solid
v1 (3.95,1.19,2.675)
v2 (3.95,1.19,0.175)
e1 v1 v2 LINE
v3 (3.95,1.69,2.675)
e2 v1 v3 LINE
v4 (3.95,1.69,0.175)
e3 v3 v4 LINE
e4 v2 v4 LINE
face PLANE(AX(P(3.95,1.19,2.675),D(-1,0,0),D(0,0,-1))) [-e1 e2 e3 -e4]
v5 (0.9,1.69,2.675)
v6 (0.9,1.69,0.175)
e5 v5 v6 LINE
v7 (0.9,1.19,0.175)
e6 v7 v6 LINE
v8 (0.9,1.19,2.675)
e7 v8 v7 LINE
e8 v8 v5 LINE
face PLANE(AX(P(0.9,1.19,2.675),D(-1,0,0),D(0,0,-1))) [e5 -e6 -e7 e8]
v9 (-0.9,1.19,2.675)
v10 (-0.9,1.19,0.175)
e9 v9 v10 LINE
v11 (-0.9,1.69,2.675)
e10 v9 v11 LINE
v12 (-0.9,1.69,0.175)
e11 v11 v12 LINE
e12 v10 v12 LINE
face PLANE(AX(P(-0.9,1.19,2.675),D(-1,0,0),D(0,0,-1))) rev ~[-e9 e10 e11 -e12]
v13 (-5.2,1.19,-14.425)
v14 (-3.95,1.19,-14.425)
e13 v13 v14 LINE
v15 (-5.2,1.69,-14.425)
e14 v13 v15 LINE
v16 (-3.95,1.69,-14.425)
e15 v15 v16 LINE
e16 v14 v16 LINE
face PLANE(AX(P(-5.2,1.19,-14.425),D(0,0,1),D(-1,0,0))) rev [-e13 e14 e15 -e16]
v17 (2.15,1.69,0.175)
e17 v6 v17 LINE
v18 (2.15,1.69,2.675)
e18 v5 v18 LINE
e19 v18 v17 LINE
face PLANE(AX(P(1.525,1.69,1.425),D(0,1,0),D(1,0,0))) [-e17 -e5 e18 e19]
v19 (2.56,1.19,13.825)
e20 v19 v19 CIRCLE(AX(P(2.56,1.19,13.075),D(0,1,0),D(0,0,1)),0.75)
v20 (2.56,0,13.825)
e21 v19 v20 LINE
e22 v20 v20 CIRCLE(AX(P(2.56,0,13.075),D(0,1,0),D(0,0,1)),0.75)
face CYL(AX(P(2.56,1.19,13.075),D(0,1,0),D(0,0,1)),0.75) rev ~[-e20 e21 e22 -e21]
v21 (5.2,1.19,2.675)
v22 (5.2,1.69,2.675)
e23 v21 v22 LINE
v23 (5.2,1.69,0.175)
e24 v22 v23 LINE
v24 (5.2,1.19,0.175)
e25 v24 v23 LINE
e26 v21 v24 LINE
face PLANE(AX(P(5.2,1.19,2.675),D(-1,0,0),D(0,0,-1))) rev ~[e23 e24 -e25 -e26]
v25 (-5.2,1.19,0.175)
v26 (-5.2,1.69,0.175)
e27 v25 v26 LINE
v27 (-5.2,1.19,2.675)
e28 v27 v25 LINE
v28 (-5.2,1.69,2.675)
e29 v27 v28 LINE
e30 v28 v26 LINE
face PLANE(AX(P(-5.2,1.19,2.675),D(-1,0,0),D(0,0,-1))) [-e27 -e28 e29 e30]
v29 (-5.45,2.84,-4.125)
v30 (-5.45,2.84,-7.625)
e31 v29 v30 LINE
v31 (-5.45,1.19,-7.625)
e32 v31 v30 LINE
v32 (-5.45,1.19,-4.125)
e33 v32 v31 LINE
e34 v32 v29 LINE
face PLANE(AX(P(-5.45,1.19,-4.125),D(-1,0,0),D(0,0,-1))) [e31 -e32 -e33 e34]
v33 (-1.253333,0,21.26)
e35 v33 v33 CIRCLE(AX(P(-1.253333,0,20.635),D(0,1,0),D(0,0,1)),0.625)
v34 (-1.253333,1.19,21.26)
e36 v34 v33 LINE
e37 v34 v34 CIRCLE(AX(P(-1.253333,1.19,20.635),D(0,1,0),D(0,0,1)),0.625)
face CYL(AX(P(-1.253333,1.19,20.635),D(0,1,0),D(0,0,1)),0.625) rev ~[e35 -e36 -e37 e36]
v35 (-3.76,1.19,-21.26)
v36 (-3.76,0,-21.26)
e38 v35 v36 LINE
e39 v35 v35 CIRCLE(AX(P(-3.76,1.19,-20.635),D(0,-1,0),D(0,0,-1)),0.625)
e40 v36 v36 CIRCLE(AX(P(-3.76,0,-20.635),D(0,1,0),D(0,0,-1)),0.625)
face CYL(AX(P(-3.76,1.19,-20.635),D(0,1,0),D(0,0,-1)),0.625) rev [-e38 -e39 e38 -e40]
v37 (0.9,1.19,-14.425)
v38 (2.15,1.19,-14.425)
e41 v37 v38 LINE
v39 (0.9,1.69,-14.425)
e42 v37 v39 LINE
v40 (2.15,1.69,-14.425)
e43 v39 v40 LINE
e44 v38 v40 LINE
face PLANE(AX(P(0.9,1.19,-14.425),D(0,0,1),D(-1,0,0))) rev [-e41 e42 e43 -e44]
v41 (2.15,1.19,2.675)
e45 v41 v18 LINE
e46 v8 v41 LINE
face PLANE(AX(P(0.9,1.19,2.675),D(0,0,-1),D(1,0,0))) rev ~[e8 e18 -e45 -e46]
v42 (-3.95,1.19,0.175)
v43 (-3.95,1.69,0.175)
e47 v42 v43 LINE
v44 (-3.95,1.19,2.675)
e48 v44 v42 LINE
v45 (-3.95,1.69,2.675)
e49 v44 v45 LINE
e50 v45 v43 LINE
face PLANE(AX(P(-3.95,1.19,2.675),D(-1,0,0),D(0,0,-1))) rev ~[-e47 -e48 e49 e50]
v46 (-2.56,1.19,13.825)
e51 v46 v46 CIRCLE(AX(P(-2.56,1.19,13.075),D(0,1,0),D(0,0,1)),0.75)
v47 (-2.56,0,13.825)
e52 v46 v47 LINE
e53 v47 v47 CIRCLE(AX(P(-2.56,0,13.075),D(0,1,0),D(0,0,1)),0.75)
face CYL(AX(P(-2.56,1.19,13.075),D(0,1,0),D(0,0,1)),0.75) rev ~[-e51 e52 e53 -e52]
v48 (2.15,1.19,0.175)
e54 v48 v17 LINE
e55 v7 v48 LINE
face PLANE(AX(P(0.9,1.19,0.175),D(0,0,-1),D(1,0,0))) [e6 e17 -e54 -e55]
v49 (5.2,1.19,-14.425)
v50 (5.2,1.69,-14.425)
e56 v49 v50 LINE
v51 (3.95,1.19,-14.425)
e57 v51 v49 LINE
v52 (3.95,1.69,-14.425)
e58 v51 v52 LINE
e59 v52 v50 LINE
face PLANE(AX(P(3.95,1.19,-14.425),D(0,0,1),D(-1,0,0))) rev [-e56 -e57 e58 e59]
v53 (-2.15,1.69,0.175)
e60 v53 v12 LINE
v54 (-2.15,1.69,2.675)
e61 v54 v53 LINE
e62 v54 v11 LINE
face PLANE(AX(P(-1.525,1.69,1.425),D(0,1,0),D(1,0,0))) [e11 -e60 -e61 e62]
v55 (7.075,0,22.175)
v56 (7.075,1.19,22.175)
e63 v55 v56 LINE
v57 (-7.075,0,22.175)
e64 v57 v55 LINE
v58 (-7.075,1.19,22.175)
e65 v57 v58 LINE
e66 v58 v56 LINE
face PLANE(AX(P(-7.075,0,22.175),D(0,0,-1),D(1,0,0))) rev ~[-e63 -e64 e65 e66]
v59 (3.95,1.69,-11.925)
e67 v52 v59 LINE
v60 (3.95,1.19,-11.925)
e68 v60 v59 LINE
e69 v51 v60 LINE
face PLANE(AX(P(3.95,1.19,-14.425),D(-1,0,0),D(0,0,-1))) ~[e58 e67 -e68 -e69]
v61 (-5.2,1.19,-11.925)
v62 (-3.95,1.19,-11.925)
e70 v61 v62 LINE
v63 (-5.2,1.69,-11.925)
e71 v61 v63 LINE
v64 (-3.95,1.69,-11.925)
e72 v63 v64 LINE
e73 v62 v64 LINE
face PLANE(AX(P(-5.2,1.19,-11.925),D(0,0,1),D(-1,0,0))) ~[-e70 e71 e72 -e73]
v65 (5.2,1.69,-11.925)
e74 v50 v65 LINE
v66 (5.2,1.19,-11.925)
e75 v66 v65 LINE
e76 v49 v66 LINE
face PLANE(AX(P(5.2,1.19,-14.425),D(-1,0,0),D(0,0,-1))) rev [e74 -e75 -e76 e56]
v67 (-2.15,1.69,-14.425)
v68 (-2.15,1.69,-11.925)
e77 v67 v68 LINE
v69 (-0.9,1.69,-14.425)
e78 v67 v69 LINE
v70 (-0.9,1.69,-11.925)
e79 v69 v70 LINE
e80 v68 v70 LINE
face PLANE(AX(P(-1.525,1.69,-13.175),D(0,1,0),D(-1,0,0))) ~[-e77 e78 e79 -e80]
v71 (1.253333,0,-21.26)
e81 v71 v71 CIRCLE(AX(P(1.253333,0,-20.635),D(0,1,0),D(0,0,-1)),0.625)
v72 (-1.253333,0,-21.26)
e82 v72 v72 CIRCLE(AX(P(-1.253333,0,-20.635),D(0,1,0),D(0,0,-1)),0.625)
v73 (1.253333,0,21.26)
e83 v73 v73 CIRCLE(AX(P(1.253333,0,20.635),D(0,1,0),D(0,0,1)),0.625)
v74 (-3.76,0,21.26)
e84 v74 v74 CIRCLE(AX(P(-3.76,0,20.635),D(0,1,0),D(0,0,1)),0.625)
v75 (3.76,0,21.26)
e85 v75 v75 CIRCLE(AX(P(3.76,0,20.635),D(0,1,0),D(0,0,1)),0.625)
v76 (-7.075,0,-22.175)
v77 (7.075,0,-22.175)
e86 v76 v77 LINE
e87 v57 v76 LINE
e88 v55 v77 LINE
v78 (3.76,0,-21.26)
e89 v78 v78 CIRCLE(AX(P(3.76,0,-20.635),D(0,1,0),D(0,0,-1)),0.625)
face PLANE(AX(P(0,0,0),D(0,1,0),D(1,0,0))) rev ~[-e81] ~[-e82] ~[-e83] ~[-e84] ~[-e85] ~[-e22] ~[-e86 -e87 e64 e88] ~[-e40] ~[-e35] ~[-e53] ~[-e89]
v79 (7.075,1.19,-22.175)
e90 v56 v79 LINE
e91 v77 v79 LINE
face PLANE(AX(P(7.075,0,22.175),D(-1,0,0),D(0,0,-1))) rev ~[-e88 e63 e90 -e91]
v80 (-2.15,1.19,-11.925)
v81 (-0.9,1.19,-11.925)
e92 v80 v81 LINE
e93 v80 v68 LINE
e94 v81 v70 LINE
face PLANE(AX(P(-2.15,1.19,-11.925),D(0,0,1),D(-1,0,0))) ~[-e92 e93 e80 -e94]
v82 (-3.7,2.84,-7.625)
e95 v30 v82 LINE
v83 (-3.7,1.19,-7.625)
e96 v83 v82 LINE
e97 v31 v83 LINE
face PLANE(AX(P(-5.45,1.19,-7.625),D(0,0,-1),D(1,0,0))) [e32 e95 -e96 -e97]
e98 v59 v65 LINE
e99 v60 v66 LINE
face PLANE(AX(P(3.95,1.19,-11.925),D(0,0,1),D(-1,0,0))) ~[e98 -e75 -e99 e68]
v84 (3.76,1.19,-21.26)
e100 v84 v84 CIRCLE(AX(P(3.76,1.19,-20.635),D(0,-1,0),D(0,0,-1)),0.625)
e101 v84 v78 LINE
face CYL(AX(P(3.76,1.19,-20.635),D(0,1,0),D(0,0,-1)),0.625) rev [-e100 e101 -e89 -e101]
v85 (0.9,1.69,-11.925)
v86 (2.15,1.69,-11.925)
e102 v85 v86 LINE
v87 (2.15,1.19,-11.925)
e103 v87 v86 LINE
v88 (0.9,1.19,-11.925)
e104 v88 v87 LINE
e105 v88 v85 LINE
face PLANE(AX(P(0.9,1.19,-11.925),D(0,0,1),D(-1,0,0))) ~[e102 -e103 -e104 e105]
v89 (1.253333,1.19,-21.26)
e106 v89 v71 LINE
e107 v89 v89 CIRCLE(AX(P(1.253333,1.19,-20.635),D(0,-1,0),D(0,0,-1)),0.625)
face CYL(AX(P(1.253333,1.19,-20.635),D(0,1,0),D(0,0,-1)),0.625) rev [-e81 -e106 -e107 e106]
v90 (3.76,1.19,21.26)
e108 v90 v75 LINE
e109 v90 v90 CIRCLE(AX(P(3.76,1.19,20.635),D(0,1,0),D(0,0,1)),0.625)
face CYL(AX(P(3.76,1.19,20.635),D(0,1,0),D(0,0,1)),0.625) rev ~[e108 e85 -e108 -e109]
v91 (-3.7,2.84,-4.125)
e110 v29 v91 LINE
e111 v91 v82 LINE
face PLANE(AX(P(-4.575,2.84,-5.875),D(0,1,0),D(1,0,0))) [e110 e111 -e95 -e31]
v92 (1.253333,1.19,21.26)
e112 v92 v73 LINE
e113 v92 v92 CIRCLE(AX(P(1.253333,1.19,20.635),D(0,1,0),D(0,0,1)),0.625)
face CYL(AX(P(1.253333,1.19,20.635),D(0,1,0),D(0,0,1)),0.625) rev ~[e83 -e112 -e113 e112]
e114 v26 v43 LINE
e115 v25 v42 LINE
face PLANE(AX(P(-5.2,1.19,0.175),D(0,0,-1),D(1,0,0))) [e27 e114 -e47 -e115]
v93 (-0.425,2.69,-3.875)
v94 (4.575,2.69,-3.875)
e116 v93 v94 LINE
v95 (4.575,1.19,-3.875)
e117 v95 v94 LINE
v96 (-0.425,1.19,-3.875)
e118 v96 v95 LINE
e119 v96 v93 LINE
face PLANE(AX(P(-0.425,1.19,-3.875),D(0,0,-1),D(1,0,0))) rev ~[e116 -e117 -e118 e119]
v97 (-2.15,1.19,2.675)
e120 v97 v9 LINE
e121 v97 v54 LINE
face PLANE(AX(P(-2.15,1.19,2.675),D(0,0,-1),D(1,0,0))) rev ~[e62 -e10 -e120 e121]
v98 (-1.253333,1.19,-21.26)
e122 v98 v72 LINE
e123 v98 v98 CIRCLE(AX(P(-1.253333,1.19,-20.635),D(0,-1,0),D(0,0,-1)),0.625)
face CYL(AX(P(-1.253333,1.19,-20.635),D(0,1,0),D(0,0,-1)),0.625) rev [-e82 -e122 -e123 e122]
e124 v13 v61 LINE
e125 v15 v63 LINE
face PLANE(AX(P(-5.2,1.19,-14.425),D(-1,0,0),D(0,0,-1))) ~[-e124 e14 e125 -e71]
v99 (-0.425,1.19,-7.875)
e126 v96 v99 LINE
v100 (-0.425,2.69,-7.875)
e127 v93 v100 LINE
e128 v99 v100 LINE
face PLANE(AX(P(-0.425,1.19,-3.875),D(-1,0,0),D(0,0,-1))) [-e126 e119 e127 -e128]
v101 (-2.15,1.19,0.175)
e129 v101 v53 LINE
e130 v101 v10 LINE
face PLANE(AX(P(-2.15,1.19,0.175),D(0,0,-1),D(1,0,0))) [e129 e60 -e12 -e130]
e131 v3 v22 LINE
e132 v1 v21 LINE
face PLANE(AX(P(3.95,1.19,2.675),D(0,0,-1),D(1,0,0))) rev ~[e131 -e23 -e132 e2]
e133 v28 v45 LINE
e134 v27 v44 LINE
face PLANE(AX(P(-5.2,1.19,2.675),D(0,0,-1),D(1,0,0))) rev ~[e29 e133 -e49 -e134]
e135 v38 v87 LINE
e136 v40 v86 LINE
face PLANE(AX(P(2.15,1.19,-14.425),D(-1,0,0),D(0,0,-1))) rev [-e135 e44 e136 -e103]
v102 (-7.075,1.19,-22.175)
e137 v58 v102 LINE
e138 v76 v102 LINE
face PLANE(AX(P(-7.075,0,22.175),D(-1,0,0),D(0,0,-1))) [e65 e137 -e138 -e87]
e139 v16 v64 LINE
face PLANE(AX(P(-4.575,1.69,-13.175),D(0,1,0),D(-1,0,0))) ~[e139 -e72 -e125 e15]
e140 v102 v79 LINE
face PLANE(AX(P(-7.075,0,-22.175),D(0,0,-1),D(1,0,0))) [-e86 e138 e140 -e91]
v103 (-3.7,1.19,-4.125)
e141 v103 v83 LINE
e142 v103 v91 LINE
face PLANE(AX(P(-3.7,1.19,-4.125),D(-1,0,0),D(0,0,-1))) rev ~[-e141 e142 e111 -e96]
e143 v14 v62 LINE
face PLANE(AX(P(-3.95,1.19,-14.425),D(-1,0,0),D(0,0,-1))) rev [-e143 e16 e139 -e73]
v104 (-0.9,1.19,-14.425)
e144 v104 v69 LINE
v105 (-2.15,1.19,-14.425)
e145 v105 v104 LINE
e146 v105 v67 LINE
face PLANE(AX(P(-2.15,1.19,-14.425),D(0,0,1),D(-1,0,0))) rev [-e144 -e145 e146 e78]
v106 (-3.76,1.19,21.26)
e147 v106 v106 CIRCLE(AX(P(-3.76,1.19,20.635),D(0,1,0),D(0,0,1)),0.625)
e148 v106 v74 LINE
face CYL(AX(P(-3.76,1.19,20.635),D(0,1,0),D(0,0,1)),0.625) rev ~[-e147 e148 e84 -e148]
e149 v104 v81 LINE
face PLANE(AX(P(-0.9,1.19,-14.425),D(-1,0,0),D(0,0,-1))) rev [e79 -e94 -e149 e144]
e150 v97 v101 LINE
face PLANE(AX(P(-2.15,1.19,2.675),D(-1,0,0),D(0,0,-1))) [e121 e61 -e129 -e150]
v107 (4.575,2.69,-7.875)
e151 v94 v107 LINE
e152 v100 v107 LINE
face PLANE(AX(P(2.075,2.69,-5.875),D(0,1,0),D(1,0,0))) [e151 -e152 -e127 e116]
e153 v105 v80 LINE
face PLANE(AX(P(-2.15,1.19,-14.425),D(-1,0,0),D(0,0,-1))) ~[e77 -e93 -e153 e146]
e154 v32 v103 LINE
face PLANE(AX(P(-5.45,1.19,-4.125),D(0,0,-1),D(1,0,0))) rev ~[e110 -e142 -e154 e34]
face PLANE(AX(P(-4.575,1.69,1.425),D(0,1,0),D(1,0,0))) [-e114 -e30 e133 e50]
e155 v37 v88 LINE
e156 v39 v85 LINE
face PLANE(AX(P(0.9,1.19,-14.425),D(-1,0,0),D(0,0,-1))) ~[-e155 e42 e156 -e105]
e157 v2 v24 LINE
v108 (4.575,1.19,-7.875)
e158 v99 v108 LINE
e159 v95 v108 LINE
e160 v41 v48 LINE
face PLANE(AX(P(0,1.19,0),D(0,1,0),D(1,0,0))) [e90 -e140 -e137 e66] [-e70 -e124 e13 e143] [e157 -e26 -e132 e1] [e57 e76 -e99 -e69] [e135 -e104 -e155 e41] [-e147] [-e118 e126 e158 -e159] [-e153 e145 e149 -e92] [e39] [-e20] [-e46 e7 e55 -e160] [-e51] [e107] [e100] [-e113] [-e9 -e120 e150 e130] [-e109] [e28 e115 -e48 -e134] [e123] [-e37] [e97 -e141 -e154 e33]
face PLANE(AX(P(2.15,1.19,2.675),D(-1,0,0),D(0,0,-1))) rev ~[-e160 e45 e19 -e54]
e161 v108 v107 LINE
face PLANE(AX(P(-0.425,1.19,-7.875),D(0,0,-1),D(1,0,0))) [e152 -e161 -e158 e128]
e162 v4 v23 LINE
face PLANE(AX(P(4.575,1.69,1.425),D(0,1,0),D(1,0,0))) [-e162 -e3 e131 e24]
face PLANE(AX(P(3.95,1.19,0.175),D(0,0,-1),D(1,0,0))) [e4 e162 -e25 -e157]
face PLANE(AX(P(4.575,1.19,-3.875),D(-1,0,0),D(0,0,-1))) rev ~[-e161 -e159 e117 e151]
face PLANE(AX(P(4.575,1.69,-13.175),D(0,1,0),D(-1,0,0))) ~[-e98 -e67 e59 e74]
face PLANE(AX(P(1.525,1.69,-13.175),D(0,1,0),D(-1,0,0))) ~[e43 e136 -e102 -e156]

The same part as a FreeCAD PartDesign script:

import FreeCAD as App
import Part
import Sketcher


def add_polygon(sketch, points):
    """Adds a closed chain of lines whose ends are joined by coincident constraints."""
    first, n = sketch.GeometryCount, len(points)
    for a, b in zip(points, points[1:] + points[:1]):
        sketch.addGeometry(Part.LineSegment(App.Vector(*a, 0), App.Vector(*b, 0)), False)
    for i in range(n):
        sketch.addConstraint(Sketcher.Constraint("Coincident", first + i, 2, first + (i + 1) % n, 1))

doc = App.newDocument("Part")
params = doc.addObject("Spreadsheet::Sheet", "Params")
for row, (alias, value) in enumerate([
    ("sketch1_width", "14.15 mm"),
    ("sketch1_height", "44.35 mm"),
    ("pad1_length", "1.19 mm"),
    ("sketch2_diameter", "1.25 mm"),
    ("sketch3_diameter", "1.5 mm"),
    ("sketch4_width", "5 mm"),
    ("sketch4_height", "4 mm"),
    ("pad2_length", "1.5 mm"),
    ("sketch5_height", "3.5 mm"),
    ("sketch5_width", "1.75 mm"),
    ("pad3_length", "1.65 mm"),
    ("sketch6_height", "2.5 mm"),
    ("sketch6_width", "1.25 mm"),
    ("pad4_length", "0.5 mm"),
], start=1):
    params.set(f"A{row}", alias)
    params.set(f"B{row}", "=" + value)
    params.setAlias(f"B{row}", alias)

body = doc.addObject("PartDesign::Body", "Body")

sketch1 = body.newObject("Sketcher::SketchObject", "Sketch")
sketch1.AttachmentSupport = (doc.getObject("XZ_Plane"), [""])
sketch1.MapMode = "FlatFace"
add_polygon(sketch1, [(-7, -22), (-7, 22), (7, 22), (7, -22)])
sketch1.addConstraint([
    Sketcher.Constraint("Vertical", 0),
    Sketcher.Constraint("Horizontal", 1),
    Sketcher.Constraint("Vertical", 2),
    Sketcher.Constraint("Horizontal", 3),
    Sketcher.Constraint("Symmetric", 0, 2, 2, 2, -1, 1),
    Sketcher.Constraint("DistanceX", 1, 1, 1, 2, 14.15),
    Sketcher.Constraint("DistanceY", 0, 1, 0, 2, 44.35),
])
sketch1.setExpression("Constraints[9]", "Params.sketch1_width")
sketch1.setExpression("Constraints[10]", "Params.sketch1_height")
pad1 = body.newObject("PartDesign::Pad", "Pad")
pad1.Profile = sketch1
pad1.setExpression("Length", "Params.pad1_length")
pad1.Reversed = True

sketch2 = body.newObject("Sketcher::SketchObject", "Sketch001")
sketch2.AttachmentSupport = (doc.getObject("XZ_Plane"), [""])
sketch2.MapMode = "FlatFace"
sketch2.AttachmentOffset = App.Placement(App.Vector(0, 0, -1.19), App.Rotation())
sketch2.addGeometry([
    Part.Circle(App.Vector(3.8, 20.6, 0), App.Vector(0, 0, 1), 0.6),
    Part.Circle(App.Vector(1.3, 20.6, 0), App.Vector(0, 0, 1), 0.6),
    Part.Circle(App.Vector(-1.3, 20.6, 0), App.Vector(0, 0, 1), 0.6),
    Part.Circle(App.Vector(-3.8, 20.6, 0), App.Vector(0, 0, 1), 0.6),
], False)
sketch2.addConstraint([
    Sketcher.Constraint("Equal", 0, 1),
    Sketcher.Constraint("Equal", 1, 2),
    Sketcher.Constraint("Equal", 2, 3),
    Sketcher.Constraint("Symmetric", 1, 3, 2, 3, -2),
    Sketcher.Constraint("Symmetric", 0, 3, 3, 3, -2),
    Sketcher.Constraint("Horizontal", 0, 3, 1, 3),
    Sketcher.Constraint("Diameter", 0, 1.25),
    Sketcher.Constraint("DistanceX", -1, 1, 0, 3, 3.76),
    Sketcher.Constraint("DistanceY", -1, 1, 0, 3, 20.635),
    Sketcher.Constraint("DistanceX", -1, 1, 1, 3, 1.253333),
])
sketch2.setExpression("Constraints[6]", "Params.sketch2_diameter")
pocket1 = body.newObject("PartDesign::Pocket", "Pocket")
pocket1.Profile = sketch2
pocket1.Type = "ThroughAll"
pocket1.Reversed = True
doc.recompute()

mirrored = body.newObject("PartDesign::Mirrored", "Mirrored")
mirrored.Originals = [pocket1]
mirrored.MirrorPlane = (doc.getObject("XY_Plane"), [""])
body.Tip = mirrored

sketch3 = body.newObject("Sketcher::SketchObject", "Sketch002")
sketch3.AttachmentSupport = (doc.getObject("XZ_Plane"), [""])
sketch3.MapMode = "FlatFace"
sketch3.AttachmentOffset = App.Placement(App.Vector(0, 0, -1.19), App.Rotation())
sketch3.addGeometry([
    Part.Circle(App.Vector(2.6, 13.1, 0), App.Vector(0, 0, 1), 0.8),
    Part.Circle(App.Vector(-2.6, 13.1, 0), App.Vector(0, 0, 1), 0.8),
], False)
sketch3.addConstraint([
    Sketcher.Constraint("Equal", 0, 1),
    Sketcher.Constraint("Symmetric", 0, 3, 1, 3, -2),
    Sketcher.Constraint("Diameter", 0, 1.5),
    Sketcher.Constraint("DistanceX", -1, 1, 0, 3, 2.56),
    Sketcher.Constraint("DistanceY", -1, 1, 0, 3, 13.075),
])
sketch3.setExpression("Constraints[2]", "Params.sketch3_diameter")
pocket2 = body.newObject("PartDesign::Pocket", "Pocket001")
pocket2.Profile = sketch3
pocket2.Type = "ThroughAll"
pocket2.Reversed = True

sketch4 = body.newObject("Sketcher::SketchObject", "Sketch003")
sketch4.AttachmentSupport = (doc.getObject("XZ_Plane"), [""])
sketch4.MapMode = "FlatFace"
sketch4.AttachmentOffset = App.Placement(App.Vector(0, 0, -1.19), App.Rotation())
add_polygon(sketch4, [(-0.4, -7.9), (-0.4, -3.9), (4.6, -3.9), (4.6, -7.9)])
sketch4.addConstraint([
    Sketcher.Constraint("Vertical", 0),
    Sketcher.Constraint("Horizontal", 1),
    Sketcher.Constraint("Vertical", 2),
    Sketcher.Constraint("Horizontal", 3),
    Sketcher.Constraint("DistanceX", 1, 1, 1, 2, 5.0),
    Sketcher.Constraint("DistanceY", 0, 1, 0, 2, 4.0),
    Sketcher.Constraint("DistanceX", 0, 2, -1, 1, 0.425),
    Sketcher.Constraint("DistanceY", 0, 2, -1, 1, 3.875),
])
sketch4.setExpression("Constraints[8]", "Params.sketch4_width")
sketch4.setExpression("Constraints[9]", "Params.sketch4_height")
pad2 = body.newObject("PartDesign::Pad", "Pad001")
pad2.Profile = sketch4
pad2.setExpression("Length", "Params.pad2_length")
pad2.Reversed = True

sketch5 = body.newObject("Sketcher::SketchObject", "Sketch004")
sketch5.AttachmentSupport = (doc.getObject("XZ_Plane"), [""])
sketch5.MapMode = "FlatFace"
sketch5.AttachmentOffset = App.Placement(App.Vector(0, 0, -1.19), App.Rotation())
add_polygon(sketch5, [(-5.5, -7.6), (-5.5, -4.1), (-3.7, -4.1), (-3.7, -7.6)])
sketch5.addConstraint([
    Sketcher.Constraint("Vertical", 0),
    Sketcher.Constraint("Horizontal", 1),
    Sketcher.Constraint("Vertical", 2),
    Sketcher.Constraint("Horizontal", 3),
    Sketcher.Constraint("DistanceY", 0, 1, 0, 2, 3.5),
    Sketcher.Constraint("DistanceX", 1, 1, 1, 2, 1.75),
    Sketcher.Constraint("DistanceX", 1, 2, -1, 1, 3.7),
    Sketcher.Constraint("DistanceY", 0, 2, -1, 1, 4.125),
])
sketch5.setExpression("Constraints[8]", "Params.sketch5_height")
sketch5.setExpression("Constraints[9]", "Params.sketch5_width")
pad3 = body.newObject("PartDesign::Pad", "Pad002")
pad3.Profile = sketch5
pad3.setExpression("Length", "Params.pad3_length")
pad3.Reversed = True

sketch6 = body.newObject("Sketcher::SketchObject", "Sketch005")
sketch6.AttachmentSupport = (doc.getObject("XZ_Plane"), [""])
sketch6.MapMode = "FlatFace"
sketch6.AttachmentOffset = App.Placement(App.Vector(0, 0, -1.19), App.Rotation())
add_polygon(sketch6, [(-5.2, 0.2), (-5.2, 2.7), (-4, 2.7), (-4, 0.2)])
add_polygon(sketch6, [(-2.1, 0.2), (-2.1, 2.7), (-0.9, 2.7), (-0.9, 0.2)])
add_polygon(sketch6, [(0.9, 0.2), (0.9, 2.7), (2.1, 2.7), (2.1, 0.2)])
add_polygon(sketch6, [(4, 0.2), (4, 2.7), (5.2, 2.7), (5.2, 0.2)])
sketch6.addConstraint([
    Sketcher.Constraint("Vertical", 0),
    Sketcher.Constraint("Horizontal", 1),
    Sketcher.Constraint("Vertical", 2),
    Sketcher.Constraint("Horizontal", 3),
    Sketcher.Constraint("Vertical", 4),
    Sketcher.Constraint("Horizontal", 5),
    Sketcher.Constraint("Vertical", 6),
    Sketcher.Constraint("Horizontal", 7),
    Sketcher.Constraint("Vertical", 8),
    Sketcher.Constraint("Horizontal", 9),
    Sketcher.Constraint("Vertical", 10),
    Sketcher.Constraint("Horizontal", 11),
    Sketcher.Constraint("Vertical", 12),
    Sketcher.Constraint("Horizontal", 13),
    Sketcher.Constraint("Vertical", 14),
    Sketcher.Constraint("Horizontal", 15),
    Sketcher.Constraint("Symmetric", 5, 2, 8, 2, -2),
    Sketcher.Constraint("Symmetric", 7, 2, 10, 2, -2),
    Sketcher.Constraint("Symmetric", 1, 2, 12, 2, -2),
    Sketcher.Constraint("Symmetric", 3, 2, 14, 2, -2),
    Sketcher.Constraint("Horizontal", 1, 2, 4, 2),
    Sketcher.Constraint("Horizontal", 3, 2, 6, 2),
    Sketcher.Constraint("Equal", 3, 5),
    Sketcher.Constraint("DistanceY", 0, 1, 0, 2, 2.5),
    Sketcher.Constraint("DistanceX", 1, 1, 1, 2, 1.25),
    Sketcher.Constraint("DistanceX", 0, 2, -1, 1, 5.2),
    Sketcher.Constraint("DistanceX", 5, 2, -1, 1, 0.9),
    Sketcher.Constraint("DistanceY", -1, 1, 0, 2, 2.675),
])
sketch6.setExpression("Constraints[39]", "Params.sketch6_height")
sketch6.setExpression("Constraints[40]", "Params.sketch6_width")
pad4 = body.newObject("PartDesign::Pad", "Pad003")
pad4.Profile = sketch6
pad4.setExpression("Length", "Params.pad4_length")
pad4.Reversed = True
doc.recompute()

datumplane = body.newObject("PartDesign::Plane", "DatumPlane")
datumplane.AttachmentSupport = (doc.getObject("XY_Plane"), [""])
datumplane.MapMode = "FlatFace"
datumplane.AttachmentOffset = App.Placement(App.Vector(0, 0, -5.875), App.Rotation())
mirrored2 = body.newObject("PartDesign::Mirrored", "Mirrored001")
mirrored2.Originals = [pad4]
mirrored2.MirrorPlane = (datumplane, [""])
body.Tip = mirrored2

doc.recompute()
